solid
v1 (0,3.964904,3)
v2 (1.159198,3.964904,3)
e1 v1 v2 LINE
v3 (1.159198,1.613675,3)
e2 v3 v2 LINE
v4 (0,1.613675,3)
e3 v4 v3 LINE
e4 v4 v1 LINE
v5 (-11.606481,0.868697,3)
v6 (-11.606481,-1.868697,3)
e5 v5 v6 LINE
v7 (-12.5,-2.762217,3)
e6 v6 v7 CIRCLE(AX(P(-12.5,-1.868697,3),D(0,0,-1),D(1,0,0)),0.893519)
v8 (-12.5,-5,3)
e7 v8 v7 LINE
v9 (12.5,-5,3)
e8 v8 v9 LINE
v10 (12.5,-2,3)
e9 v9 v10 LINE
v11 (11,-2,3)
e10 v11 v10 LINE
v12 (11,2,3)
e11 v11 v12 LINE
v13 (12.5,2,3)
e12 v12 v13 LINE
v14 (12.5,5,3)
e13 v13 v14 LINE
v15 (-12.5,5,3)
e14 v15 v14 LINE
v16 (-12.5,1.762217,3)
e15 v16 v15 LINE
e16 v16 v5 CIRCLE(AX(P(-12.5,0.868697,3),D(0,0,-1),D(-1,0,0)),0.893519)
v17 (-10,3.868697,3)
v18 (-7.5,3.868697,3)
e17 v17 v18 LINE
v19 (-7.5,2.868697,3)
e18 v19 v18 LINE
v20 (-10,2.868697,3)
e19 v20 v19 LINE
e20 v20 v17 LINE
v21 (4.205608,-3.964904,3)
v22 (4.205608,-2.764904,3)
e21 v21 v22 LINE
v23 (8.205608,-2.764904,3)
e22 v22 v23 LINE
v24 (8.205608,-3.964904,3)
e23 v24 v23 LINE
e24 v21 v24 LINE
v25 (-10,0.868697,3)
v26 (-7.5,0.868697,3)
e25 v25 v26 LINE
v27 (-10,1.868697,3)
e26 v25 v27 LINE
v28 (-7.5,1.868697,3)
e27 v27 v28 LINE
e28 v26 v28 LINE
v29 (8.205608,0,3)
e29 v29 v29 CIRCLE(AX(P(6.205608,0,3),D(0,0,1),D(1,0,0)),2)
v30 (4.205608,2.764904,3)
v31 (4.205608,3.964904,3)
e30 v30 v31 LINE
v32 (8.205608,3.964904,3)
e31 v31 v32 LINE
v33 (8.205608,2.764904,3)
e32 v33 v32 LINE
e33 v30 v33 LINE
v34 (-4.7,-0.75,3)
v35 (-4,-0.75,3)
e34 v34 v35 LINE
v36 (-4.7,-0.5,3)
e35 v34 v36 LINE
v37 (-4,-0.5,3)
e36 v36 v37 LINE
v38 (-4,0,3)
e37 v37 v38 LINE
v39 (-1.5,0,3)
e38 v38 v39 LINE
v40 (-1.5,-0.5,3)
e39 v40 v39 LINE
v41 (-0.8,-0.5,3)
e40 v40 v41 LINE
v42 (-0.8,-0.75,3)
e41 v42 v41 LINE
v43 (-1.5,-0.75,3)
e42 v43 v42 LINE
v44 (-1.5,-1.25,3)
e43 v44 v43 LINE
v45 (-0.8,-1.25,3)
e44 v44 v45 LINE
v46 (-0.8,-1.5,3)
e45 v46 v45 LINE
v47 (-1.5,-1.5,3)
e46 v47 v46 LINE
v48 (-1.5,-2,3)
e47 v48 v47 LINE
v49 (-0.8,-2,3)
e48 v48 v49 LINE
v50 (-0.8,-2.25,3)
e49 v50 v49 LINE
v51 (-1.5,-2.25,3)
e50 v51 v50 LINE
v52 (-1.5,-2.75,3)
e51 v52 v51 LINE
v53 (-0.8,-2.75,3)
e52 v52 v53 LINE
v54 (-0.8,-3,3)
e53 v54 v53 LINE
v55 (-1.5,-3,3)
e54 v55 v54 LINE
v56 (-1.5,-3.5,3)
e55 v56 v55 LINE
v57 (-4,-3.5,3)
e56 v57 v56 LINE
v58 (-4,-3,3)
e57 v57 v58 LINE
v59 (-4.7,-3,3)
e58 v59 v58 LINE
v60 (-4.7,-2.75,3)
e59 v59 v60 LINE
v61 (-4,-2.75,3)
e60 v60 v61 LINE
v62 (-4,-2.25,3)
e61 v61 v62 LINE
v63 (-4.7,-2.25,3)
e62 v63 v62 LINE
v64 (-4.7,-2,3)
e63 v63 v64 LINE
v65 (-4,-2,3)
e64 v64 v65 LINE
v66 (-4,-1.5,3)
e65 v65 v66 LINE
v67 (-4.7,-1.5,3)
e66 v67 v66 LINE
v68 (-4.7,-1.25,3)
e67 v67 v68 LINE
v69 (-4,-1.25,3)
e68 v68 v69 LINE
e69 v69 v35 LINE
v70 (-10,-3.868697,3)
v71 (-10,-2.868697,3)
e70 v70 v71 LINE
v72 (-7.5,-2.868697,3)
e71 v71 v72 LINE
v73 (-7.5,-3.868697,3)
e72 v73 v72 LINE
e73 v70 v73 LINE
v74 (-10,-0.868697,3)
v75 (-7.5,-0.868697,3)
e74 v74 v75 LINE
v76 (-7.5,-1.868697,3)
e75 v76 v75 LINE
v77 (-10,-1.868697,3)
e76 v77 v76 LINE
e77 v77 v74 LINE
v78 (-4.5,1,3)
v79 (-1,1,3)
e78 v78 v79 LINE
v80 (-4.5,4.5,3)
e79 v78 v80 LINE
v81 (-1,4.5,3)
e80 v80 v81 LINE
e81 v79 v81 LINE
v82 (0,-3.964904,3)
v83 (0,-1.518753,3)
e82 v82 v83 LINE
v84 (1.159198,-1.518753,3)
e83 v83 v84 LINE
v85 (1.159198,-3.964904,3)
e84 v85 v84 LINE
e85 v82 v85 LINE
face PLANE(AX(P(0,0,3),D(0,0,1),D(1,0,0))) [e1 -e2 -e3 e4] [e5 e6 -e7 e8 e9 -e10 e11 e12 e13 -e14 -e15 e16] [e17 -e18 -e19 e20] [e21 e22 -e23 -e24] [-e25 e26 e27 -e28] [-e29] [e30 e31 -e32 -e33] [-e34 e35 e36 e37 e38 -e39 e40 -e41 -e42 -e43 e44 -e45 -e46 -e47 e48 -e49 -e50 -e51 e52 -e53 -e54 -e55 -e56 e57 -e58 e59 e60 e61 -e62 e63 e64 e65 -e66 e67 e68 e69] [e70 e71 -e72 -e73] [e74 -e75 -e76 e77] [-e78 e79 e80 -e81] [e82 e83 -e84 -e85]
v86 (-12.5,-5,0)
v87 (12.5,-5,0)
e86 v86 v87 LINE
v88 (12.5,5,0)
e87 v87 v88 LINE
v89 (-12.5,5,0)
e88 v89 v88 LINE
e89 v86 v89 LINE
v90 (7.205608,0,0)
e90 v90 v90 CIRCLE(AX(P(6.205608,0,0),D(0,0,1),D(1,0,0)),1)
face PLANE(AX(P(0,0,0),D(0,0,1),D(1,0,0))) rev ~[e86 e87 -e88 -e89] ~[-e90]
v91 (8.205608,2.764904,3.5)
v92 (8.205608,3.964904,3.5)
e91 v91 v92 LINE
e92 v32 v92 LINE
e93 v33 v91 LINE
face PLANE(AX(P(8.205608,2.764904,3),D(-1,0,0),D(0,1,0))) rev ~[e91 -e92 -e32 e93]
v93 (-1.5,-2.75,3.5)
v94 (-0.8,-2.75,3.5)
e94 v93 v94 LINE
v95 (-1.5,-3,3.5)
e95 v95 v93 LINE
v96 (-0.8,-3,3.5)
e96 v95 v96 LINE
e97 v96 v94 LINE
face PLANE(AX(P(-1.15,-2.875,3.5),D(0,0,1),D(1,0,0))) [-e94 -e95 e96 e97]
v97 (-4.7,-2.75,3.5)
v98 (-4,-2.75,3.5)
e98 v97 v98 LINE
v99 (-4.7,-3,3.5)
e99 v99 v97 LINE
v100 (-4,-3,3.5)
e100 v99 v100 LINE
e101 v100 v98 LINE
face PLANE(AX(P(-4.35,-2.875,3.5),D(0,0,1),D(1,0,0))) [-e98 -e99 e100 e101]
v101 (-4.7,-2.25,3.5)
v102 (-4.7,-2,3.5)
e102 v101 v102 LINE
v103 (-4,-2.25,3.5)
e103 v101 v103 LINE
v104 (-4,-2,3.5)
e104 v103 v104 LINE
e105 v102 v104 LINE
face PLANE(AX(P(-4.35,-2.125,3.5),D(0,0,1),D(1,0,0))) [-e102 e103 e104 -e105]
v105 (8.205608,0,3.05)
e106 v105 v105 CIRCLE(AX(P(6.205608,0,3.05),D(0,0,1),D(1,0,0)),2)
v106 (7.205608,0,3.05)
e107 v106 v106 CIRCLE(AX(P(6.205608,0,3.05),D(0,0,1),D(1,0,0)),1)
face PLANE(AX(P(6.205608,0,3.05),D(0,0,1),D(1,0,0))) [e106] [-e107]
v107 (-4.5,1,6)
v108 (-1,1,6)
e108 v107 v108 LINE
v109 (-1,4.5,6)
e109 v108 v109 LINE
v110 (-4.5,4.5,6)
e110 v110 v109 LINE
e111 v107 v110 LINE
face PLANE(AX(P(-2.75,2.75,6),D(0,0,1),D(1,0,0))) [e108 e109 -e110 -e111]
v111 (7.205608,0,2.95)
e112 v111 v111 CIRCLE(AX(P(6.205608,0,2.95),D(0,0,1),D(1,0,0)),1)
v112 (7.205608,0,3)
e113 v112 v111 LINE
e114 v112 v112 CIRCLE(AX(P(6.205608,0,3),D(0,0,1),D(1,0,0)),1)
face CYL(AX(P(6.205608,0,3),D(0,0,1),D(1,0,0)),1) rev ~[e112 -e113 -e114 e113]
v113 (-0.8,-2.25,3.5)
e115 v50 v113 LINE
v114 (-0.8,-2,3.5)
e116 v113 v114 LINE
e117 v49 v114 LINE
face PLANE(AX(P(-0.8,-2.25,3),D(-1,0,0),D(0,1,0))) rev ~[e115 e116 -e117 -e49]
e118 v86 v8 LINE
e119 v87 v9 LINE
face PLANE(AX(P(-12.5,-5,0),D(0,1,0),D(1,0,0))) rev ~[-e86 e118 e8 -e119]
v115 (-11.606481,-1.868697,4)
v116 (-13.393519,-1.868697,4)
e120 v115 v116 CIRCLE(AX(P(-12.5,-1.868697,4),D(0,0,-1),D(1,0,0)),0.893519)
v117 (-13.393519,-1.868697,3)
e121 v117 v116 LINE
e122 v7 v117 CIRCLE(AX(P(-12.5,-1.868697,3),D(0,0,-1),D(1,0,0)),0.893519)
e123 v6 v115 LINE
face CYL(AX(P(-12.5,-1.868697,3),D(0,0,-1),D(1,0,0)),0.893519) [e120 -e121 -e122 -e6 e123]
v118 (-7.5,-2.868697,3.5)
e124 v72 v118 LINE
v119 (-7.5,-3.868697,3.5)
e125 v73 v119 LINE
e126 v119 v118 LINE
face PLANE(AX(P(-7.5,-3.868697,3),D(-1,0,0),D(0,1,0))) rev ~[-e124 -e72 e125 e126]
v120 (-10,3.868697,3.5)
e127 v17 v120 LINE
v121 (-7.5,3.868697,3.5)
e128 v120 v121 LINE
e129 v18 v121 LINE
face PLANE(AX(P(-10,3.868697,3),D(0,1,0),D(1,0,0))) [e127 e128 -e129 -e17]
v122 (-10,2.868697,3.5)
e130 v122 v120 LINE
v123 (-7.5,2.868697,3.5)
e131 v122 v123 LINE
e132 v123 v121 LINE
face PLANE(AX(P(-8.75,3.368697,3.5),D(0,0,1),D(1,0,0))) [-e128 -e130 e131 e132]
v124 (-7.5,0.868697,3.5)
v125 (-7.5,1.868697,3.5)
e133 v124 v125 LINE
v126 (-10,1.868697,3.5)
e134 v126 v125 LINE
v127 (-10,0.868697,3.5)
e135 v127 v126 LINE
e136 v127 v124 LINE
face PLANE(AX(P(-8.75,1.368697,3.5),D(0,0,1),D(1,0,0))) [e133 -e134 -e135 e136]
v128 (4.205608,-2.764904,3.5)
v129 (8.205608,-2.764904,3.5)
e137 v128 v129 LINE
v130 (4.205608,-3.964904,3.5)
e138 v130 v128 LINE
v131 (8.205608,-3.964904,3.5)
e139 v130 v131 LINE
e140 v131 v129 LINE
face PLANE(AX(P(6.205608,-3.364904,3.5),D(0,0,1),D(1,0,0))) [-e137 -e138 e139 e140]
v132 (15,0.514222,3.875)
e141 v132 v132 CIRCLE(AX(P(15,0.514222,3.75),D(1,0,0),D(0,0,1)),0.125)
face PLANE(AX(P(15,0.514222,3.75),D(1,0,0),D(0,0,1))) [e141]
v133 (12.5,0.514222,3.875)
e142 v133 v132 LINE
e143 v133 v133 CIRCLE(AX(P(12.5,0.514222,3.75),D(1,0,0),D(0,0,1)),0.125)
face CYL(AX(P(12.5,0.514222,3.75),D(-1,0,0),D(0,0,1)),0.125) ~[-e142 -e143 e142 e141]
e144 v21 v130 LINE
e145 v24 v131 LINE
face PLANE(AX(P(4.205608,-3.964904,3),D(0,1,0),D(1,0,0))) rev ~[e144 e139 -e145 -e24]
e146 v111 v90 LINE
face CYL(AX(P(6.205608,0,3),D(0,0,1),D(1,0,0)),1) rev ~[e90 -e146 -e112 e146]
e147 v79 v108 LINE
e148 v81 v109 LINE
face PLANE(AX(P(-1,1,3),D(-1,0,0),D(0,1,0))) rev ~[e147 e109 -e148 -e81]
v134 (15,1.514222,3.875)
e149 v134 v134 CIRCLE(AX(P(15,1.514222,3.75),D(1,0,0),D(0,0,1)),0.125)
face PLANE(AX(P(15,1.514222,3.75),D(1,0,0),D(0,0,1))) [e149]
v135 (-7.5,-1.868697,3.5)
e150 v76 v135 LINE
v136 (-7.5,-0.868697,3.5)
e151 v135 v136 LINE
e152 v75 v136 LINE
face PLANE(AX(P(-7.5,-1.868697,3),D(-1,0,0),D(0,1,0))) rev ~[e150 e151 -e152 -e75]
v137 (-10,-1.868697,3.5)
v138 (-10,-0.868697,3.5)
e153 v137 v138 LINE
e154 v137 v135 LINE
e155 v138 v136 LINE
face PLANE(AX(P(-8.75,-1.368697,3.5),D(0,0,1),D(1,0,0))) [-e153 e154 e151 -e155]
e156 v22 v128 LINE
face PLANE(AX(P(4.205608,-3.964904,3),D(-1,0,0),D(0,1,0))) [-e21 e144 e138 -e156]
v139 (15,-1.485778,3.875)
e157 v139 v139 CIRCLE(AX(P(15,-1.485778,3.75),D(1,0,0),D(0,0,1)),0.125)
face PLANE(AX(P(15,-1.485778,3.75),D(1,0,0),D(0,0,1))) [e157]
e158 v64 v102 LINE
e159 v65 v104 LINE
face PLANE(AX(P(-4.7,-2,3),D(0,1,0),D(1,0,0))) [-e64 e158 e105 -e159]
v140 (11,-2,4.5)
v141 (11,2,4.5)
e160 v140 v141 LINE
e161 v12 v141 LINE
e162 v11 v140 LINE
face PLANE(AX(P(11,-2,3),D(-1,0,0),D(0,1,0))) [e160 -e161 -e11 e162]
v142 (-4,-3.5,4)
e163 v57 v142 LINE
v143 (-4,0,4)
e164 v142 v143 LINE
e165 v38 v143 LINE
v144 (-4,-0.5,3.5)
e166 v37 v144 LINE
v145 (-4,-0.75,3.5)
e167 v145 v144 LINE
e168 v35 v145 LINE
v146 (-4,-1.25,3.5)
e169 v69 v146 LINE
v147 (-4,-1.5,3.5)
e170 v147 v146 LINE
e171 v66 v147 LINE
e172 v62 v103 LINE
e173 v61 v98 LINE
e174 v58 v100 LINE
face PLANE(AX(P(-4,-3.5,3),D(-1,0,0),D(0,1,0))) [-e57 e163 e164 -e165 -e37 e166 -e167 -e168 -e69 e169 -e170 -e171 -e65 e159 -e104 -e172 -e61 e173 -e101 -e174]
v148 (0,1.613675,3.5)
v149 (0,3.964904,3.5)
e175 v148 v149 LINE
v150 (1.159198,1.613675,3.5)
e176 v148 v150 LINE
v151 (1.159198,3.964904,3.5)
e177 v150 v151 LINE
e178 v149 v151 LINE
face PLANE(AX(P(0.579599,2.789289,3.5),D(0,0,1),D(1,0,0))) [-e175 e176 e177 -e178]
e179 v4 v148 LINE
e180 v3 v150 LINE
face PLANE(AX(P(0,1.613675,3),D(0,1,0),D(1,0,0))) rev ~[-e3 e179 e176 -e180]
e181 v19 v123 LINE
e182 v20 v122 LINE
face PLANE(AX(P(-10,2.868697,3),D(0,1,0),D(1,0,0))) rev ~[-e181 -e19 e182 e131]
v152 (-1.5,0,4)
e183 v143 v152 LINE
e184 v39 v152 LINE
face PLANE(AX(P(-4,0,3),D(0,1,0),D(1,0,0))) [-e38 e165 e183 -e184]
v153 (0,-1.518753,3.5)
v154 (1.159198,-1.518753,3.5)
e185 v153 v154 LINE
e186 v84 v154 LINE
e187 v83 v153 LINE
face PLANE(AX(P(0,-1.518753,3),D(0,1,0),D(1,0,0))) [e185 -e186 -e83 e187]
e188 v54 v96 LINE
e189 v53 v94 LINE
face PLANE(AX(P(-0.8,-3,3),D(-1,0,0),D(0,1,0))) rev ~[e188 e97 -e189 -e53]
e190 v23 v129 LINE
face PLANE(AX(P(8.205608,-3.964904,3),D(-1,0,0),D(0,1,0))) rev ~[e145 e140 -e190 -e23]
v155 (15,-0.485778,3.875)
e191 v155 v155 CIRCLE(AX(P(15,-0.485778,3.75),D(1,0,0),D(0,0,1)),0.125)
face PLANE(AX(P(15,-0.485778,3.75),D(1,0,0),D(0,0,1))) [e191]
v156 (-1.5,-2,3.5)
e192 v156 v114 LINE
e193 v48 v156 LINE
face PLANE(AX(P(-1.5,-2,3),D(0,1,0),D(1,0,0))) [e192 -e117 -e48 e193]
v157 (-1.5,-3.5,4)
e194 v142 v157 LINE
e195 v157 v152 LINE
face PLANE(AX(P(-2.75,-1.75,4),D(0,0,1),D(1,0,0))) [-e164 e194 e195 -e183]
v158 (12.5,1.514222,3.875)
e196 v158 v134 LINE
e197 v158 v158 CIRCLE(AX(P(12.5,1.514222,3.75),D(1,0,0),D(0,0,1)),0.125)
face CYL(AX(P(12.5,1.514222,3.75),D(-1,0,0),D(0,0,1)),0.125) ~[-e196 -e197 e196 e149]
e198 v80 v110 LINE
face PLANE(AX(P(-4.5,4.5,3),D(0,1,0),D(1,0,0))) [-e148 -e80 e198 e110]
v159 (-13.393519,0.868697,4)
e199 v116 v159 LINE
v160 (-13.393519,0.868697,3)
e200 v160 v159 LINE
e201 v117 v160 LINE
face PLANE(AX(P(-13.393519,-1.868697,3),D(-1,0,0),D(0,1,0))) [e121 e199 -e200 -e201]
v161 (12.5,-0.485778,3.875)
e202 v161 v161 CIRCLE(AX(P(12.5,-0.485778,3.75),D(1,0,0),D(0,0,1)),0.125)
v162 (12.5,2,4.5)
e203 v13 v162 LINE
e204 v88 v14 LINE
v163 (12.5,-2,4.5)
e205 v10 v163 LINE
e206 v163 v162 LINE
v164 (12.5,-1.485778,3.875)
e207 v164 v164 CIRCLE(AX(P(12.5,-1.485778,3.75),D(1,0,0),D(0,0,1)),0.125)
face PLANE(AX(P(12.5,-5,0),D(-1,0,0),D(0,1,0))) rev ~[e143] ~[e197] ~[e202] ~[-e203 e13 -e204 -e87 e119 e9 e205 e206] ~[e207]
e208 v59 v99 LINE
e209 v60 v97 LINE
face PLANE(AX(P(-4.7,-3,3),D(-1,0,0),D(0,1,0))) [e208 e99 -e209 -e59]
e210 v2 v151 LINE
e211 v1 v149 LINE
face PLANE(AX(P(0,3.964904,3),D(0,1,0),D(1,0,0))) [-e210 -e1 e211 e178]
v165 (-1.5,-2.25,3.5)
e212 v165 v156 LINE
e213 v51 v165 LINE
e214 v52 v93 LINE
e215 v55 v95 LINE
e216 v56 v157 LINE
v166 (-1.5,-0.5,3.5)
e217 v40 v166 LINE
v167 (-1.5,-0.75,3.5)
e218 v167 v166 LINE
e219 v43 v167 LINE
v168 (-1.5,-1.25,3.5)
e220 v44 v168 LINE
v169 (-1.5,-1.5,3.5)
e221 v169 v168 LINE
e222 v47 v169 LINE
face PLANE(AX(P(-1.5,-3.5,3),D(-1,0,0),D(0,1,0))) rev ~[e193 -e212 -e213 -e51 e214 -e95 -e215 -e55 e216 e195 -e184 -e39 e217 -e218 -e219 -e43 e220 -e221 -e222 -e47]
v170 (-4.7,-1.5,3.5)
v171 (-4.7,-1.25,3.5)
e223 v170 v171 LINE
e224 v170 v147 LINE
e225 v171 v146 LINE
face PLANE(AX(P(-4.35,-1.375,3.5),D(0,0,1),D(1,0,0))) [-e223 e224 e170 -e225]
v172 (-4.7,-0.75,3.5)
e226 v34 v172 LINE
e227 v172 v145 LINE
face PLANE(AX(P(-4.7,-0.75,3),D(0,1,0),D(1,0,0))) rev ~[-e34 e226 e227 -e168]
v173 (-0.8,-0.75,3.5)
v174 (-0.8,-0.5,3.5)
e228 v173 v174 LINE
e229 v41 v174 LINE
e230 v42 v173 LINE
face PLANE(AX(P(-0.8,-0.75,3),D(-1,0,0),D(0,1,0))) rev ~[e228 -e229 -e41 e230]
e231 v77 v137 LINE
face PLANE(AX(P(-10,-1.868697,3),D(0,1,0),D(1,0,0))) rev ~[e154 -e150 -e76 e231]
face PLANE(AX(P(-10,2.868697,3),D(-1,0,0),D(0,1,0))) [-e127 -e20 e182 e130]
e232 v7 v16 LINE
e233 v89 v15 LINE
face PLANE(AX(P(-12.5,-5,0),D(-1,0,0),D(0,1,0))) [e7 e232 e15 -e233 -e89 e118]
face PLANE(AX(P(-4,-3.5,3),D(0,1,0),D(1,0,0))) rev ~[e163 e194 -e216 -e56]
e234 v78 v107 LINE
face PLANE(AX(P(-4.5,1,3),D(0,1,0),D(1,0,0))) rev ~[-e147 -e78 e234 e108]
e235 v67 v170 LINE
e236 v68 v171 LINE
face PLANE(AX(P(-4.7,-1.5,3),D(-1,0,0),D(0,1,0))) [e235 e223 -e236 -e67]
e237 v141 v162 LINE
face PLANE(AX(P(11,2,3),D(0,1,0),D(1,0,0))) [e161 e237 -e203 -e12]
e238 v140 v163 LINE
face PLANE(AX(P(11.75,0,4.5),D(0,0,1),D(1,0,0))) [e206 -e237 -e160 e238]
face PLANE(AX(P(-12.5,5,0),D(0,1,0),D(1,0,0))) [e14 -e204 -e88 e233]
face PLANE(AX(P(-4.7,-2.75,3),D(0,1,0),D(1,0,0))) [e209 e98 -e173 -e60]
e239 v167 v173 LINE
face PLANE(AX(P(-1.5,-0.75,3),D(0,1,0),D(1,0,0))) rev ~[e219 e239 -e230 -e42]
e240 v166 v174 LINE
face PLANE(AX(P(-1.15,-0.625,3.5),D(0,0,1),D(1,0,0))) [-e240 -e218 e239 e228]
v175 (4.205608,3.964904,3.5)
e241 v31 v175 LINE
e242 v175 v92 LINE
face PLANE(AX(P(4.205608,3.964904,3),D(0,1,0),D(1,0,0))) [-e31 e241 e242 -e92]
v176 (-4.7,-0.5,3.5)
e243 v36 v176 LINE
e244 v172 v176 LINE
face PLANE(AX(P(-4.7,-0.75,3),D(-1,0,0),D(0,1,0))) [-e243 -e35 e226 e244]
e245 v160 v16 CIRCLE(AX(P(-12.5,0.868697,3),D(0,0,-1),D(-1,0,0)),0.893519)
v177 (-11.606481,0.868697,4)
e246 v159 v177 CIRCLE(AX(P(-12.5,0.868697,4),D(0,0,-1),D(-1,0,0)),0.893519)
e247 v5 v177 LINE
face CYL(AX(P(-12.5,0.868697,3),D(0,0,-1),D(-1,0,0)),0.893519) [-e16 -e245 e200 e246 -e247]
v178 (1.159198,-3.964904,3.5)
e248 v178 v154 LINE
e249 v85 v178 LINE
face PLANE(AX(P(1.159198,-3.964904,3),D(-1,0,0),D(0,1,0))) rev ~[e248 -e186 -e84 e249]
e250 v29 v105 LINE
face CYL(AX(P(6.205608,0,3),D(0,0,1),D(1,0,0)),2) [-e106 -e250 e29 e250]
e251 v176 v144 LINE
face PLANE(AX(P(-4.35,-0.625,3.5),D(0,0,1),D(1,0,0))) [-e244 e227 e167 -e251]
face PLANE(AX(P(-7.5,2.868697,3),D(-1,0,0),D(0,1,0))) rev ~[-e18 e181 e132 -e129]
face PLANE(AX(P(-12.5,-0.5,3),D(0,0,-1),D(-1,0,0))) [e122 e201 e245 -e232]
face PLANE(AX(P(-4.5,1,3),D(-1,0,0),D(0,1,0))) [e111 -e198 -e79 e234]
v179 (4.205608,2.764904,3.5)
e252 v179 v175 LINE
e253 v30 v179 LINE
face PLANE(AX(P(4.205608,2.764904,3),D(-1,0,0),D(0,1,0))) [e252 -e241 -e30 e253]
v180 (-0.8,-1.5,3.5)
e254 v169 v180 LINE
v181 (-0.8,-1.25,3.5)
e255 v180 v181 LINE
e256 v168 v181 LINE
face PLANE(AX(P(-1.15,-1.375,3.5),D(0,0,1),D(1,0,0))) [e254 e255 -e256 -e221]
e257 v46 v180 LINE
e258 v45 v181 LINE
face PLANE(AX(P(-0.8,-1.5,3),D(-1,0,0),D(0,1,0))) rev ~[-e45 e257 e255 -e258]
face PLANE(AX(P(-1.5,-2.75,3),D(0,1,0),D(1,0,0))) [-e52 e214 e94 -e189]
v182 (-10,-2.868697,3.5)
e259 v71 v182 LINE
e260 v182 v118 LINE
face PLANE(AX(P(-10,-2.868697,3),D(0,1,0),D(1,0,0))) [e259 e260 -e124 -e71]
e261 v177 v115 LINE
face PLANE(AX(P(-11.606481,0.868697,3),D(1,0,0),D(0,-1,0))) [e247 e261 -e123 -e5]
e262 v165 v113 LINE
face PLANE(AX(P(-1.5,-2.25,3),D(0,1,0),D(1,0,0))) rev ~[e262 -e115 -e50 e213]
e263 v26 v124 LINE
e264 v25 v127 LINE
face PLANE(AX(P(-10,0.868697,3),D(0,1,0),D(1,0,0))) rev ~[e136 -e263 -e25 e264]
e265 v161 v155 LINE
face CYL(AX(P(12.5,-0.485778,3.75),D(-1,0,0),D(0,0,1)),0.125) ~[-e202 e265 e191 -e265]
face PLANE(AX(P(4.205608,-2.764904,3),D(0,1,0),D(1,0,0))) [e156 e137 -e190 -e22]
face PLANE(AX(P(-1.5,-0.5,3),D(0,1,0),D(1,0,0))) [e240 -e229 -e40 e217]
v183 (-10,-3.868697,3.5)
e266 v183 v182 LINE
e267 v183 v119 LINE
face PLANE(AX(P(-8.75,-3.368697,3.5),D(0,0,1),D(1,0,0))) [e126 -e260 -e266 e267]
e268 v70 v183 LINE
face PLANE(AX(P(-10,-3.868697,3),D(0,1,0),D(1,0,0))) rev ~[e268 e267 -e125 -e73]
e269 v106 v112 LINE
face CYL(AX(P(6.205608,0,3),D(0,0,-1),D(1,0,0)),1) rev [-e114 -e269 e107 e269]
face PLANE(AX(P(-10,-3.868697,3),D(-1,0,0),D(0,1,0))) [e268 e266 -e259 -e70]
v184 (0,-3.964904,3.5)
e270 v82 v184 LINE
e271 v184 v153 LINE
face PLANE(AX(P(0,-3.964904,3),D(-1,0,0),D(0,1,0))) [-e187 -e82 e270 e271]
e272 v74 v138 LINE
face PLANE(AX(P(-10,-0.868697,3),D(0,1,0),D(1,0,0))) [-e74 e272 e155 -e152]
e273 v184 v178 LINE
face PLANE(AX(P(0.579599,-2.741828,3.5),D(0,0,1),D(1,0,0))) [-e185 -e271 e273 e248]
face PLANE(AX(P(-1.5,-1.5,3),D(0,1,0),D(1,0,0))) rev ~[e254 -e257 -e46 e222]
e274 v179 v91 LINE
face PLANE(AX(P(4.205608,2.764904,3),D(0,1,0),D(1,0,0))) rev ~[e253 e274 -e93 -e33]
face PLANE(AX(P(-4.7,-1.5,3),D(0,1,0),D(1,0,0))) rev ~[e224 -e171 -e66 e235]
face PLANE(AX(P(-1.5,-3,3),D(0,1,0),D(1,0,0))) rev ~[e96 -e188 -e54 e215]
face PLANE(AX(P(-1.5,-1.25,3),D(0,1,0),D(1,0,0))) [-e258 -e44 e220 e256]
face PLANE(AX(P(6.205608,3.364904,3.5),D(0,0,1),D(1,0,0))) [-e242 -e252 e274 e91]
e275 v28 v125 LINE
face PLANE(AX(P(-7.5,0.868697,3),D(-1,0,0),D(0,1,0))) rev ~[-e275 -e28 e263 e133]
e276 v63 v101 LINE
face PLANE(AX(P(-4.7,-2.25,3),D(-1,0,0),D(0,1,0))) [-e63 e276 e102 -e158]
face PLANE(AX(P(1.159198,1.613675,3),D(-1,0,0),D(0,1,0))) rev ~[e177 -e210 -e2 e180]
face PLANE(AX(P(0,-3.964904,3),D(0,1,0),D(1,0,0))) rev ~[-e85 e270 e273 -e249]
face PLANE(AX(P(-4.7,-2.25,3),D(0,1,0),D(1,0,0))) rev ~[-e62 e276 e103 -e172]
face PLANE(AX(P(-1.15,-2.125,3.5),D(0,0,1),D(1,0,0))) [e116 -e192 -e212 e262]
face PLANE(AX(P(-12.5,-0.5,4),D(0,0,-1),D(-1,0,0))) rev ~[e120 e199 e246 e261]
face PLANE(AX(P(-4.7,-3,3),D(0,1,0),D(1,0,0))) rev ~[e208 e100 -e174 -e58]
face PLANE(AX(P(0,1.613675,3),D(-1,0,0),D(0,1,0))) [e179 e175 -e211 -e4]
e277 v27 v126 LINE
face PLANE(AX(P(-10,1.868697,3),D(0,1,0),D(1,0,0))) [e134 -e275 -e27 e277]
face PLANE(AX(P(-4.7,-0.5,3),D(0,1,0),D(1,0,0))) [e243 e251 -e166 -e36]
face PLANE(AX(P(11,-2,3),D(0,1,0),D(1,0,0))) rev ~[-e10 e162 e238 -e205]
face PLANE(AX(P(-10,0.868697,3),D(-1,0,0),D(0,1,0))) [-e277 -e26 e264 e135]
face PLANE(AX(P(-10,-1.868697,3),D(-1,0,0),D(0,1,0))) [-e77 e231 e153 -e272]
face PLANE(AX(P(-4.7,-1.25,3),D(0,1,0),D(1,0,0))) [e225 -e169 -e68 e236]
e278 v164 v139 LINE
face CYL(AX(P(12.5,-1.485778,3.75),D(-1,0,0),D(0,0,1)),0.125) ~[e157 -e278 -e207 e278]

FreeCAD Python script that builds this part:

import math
import FreeCAD as App
import Part
import Sketcher
Q = App.Units.Quantity

doc = App.newDocument("Part")
body = doc.addObject("PartDesign::Body", "Body")

# Sketch on XY plane
sketch1 = doc.addObject("Sketcher::SketchObject", "Sketch")
body.addObject(sketch1)
sketch1.AttachmentSupport = (doc.XY_Plane, [""])
sketch1.MapMode = "FlatFace"
sketch1.addGeometry([
    Part.LineSegment(App.Vector(-12.5, 5, 0), App.Vector(-12.5, -5, 0)),
    Part.LineSegment(App.Vector(-12.5, -5, 0), App.Vector(12.5, -5, 0)),
    Part.LineSegment(App.Vector(12.5, -5, 0), App.Vector(12.5, 5, 0)),
    Part.LineSegment(App.Vector(12.5, 5, 0), App.Vector(-12.5, 5, 0)),
], False)
sketch1.addConstraint([
    Sketcher.Constraint("Coincident", 0, 2, 1, 1),
    Sketcher.Constraint("Coincident", 1, 2, 2, 1),
    Sketcher.Constraint("Coincident", 2, 2, 3, 1),
    Sketcher.Constraint("Coincident", 3, 2, 0, 1),
    Sketcher.Constraint("Vertical", 0),
    Sketcher.Constraint("Horizontal", 1),
    Sketcher.Constraint("Vertical", 2),
    Sketcher.Constraint("Horizontal", 3),
    Sketcher.Constraint("Symmetric", 0, 2, 2, 2, -1, 1),
    Sketcher.Constraint("DistanceX", 1, 1, 1, 2, Q("25 mm")),
    Sketcher.Constraint("DistanceY", 0, 2, 0, 1, Q("10 mm")),
])
pad1 = doc.addObject("PartDesign::Pad", "Pad")
body.addObject(pad1)
pad1.Profile = sketch1
pad1.Length = 3

# Sketch on XY plane
sketch2 = doc.addObject("Sketcher::SketchObject", "Sketch001")
body.addObject(sketch2)
sketch2.AttachmentSupport = (doc.XY_Plane, [""])
sketch2.MapMode = "FlatFace"
sketch2.AttachmentOffset = App.Placement(App.Vector(0, 0, 3), App.Rotation())
sketch2.addGeometry(Part.Circle(App.Vector(6.205608, 0, 0), App.Vector(0, 0, 1), 1), False)
sketch2.addConstraint([
    Sketcher.Constraint("PointOnObject", 0, 3, -1),
    Sketcher.Constraint("Diameter", 0, Q("2 mm")),
    Sketcher.Constraint("DistanceX", -1, 1, 0, 3, Q("6.205608 mm")),
])
pocket1 = doc.addObject("PartDesign::Pocket", "Pocket")
body.addObject(pocket1)
pocket1.Profile = sketch2
pocket1.Type = "UpToFirst"

# Sketch on XY plane
sketch3 = doc.addObject("Sketcher::SketchObject", "Sketch002")
body.addObject(sketch3)
sketch3.AttachmentSupport = (doc.XY_Plane, [""])
sketch3.MapMode = "FlatFace"
sketch3.AttachmentOffset = App.Placement(App.Vector(0, 0, 3), App.Rotation())
sketch3.addGeometry([
    Part.Circle(App.Vector(6.205608, 0, 0), App.Vector(0, 0, 1), 2),
    Part.Circle(App.Vector(6.205608, 0, 0), App.Vector(0, 0, 1), 1),
], False)
sketch3.addConstraint([
    Sketcher.Constraint("Coincident", 1, 3, 0, 3),
    Sketcher.Constraint("PointOnObject", 0, 3, -1),
    Sketcher.Constraint("Diameter", 0, Q("4 mm")),
    Sketcher.Constraint("Diameter", 1, Q("2 mm")),
    Sketcher.Constraint("DistanceX", -1, 1, 0, 3, Q("6.205608 mm")),
])
pad2 = doc.addObject("PartDesign::Pad", "Pad001")
body.addObject(pad2)
pad2.Profile = sketch3
pad2.Length = 0.1
pad2.Midplane = True

# Sketch on XY plane
sketch4 = doc.addObject("Sketcher::SketchObject", "Sketch003")
body.addObject(sketch4)
sketch4.AttachmentSupport = (doc.XY_Plane, [""])
sketch4.MapMode = "FlatFace"
sketch4.AttachmentOffset = App.Placement(App.Vector(0, 0, 3), App.Rotation())
sketch4.addGeometry([
    Part.LineSegment(App.Vector(-4.5, 4.5, 0), App.Vector(-4.5, 1, 0)),
    Part.LineSegment(App.Vector(-4.5, 1, 0), App.Vector(-1, 1, 0)),
    Part.LineSegment(App.Vector(-1, 1, 0), App.Vector(-1, 4.5, 0)),
    Part.LineSegment(App.Vector(-1, 4.5, 0), App.Vector(-4.5, 4.5, 0)),
], False)
sketch4.addConstraint([
    Sketcher.Constraint("Coincident", 0, 2, 1, 1),
    Sketcher.Constraint("Coincident", 1, 2, 2, 1),
    Sketcher.Constraint("Coincident", 2, 2, 3, 1),
    Sketcher.Constraint("Coincident", 3, 2, 0, 1),
    Sketcher.Constraint("Vertical", 0),
    Sketcher.Constraint("Horizontal", 1),
    Sketcher.Constraint("Vertical", 2),
    Sketcher.Constraint("Horizontal", 3),
    Sketcher.Constraint("Equal", 3, 0),
    Sketcher.Constraint("DistanceX", 1, 1, 1, 2, Q("3.5 mm")),
    Sketcher.Constraint("DistanceY", -1, 1, 0, 2, Q("1 mm")),
    Sketcher.Constraint("DistanceX", 1, 2, -1, 1, Q("1 mm")),
])
pad3 = doc.addObject("PartDesign::Pad", "Pad002")
body.addObject(pad3)
pad3.Profile = sketch4
pad3.Length = 3

# Sketch on XY plane
sketch5 = doc.addObject("Sketcher::SketchObject", "Sketch004")
body.addObject(sketch5)
sketch5.AttachmentSupport = (doc.XY_Plane, [""])
sketch5.MapMode = "FlatFace"
sketch5.AttachmentOffset = App.Placement(App.Vector(0, 0, 3), App.Rotation())
sketch5.addGeometry([
    Part.LineSegment(App.Vector(-4, 0, 0), App.Vector(-4, -3.5, 0)),
    Part.LineSegment(App.Vector(-4, -3.5, 0), App.Vector(-1.5, -3.5, 0)),
    Part.LineSegment(App.Vector(-1.5, -3.5, 0), App.Vector(-1.5, 0, 0)),
    Part.LineSegment(App.Vector(-1.5, 0, 0), App.Vector(-4, 0, 0)),
], False)
sketch5.addConstraint([
    Sketcher.Constraint("Coincident", 0, 2, 1, 1),
    Sketcher.Constraint("Coincident", 1, 2, 2, 1),
    Sketcher.Constraint("Coincident", 2, 2, 3, 1),
    Sketcher.Constraint("Coincident", 3, 2, 0, 1),
    Sketcher.Constraint("Vertical", 0),
    Sketcher.Constraint("Horizontal", 1),
    Sketcher.Constraint("Vertical", 2),
    Sketcher.Constraint("Horizontal", 3),
    Sketcher.Constraint("PointOnObject", 2, 2, -1),
    Sketcher.Constraint("DistanceX", 1, 1, 1, 2, Q("2.5 mm")),
    Sketcher.Constraint("DistanceY", 0, 2, 0, 1, Q("3.5 mm")),
    Sketcher.Constraint("DistanceX", 0, 2, -1, 1, Q("4 mm")),
])
pad4 = doc.addObject("PartDesign::Pad", "Pad003")
body.addObject(pad4)
pad4.Profile = sketch5
pad4.Length = 1

# Sketch on XY plane
sketch6 = doc.addObject("Sketcher::SketchObject", "Sketch005")
body.addObject(sketch6)
sketch6.AttachmentSupport = (doc.XY_Plane, [""])
sketch6.MapMode = "FlatFace"
sketch6.AttachmentOffset = App.Placement(App.Vector(0, 0, 3), App.Rotation())
sketch6.addGeometry([
    Part.LineSegment(App.Vector(-4.7, -0.5, 0), App.Vector(-4.7, -0.75, 0)),  # 0
    Part.LineSegment(App.Vector(-4.7, -0.75, 0), App.Vector(-4, -0.75, 0)),  # 1
    Part.LineSegment(App.Vector(-4, -0.75, 0), App.Vector(-4, -0.5, 0)),  # 2
    Part.LineSegment(App.Vector(-4, -0.5, 0), App.Vector(-4.7, -0.5, 0)),  # 3
    Part.LineSegment(App.Vector(-4.7, -1.25, 0), App.Vector(-4.7, -1.5, 0)),  # 4
    Part.LineSegment(App.Vector(-4.7, -1.5, 0), App.Vector(-4, -1.5, 0)),  # 5
    Part.LineSegment(App.Vector(-4, -1.5, 0), App.Vector(-4, -1.25, 0)),  # 6
    Part.LineSegment(App.Vector(-4, -1.25, 0), App.Vector(-4.7, -1.25, 0)),  # 7
    Part.LineSegment(App.Vector(-4.7, -2, 0), App.Vector(-4.7, -2.25, 0)),  # 8
    Part.LineSegment(App.Vector(-4.7, -2.25, 0), App.Vector(-4, -2.25, 0)),  # 9
    Part.LineSegment(App.Vector(-4, -2.25, 0), App.Vector(-4, -2, 0)),  # 10
    Part.LineSegment(App.Vector(-4, -2, 0), App.Vector(-4.7, -2, 0)),  # 11
    Part.LineSegment(App.Vector(-4.7, -2.75, 0), App.Vector(-4.7, -3, 0)),  # 12
    Part.LineSegment(App.Vector(-4.7, -3, 0), App.Vector(-4, -3, 0)),  # 13
    Part.LineSegment(App.Vector(-4, -3, 0), App.Vector(-4, -2.75, 0)),  # 14
    Part.LineSegment(App.Vector(-4, -2.75, 0), App.Vector(-4.7, -2.75, 0)),  # 15
    Part.LineSegment(App.Vector(-1.5, -2.75, 0), App.Vector(-1.5, -3, 0)),  # 16
    Part.LineSegment(App.Vector(-1.5, -3, 0), App.Vector(-0.8, -3, 0)),  # 17
    Part.LineSegment(App.Vector(-0.8, -3, 0), App.Vector(-0.8, -2.75, 0)),  # 18
    Part.LineSegment(App.Vector(-0.8, -2.75, 0), App.Vector(-1.5, -2.75, 0)),  # 19
    Part.LineSegment(App.Vector(-1.5, -2, 0), App.Vector(-1.5, -2.25, 0)),  # 20
    Part.LineSegment(App.Vector(-1.5, -2.25, 0), App.Vector(-0.8, -2.25, 0)),  # 21
    Part.LineSegment(App.Vector(-0.8, -2.25, 0), App.Vector(-0.8, -2, 0)),  # 22
    Part.LineSegment(App.Vector(-0.8, -2, 0), App.Vector(-1.5, -2, 0)),  # 23
    Part.LineSegment(App.Vector(-1.5, -1.25, 0), App.Vector(-1.5, -1.5, 0)),  # 24
    Part.LineSegment(App.Vector(-1.5, -1.5, 0), App.Vector(-0.8, -1.5, 0)),  # 25
    Part.LineSegment(App.Vector(-0.8, -1.5, 0), App.Vector(-0.8, -1.25, 0)),  # 26
    Part.LineSegment(App.Vector(-0.8, -1.25, 0), App.Vector(-1.5, -1.25, 0)),  # 27
    Part.LineSegment(App.Vector(-1.5, -0.5, 0), App.Vector(-1.5, -0.75, 0)),  # 28
    Part.LineSegment(App.Vector(-1.5, -0.75, 0), App.Vector(-0.8, -0.75, 0)),  # 29
    Part.LineSegment(App.Vector(-0.8, -0.75, 0), App.Vector(-0.8, -0.5, 0)),  # 30
    Part.LineSegment(App.Vector(-0.8, -0.5, 0), App.Vector(-1.5, -0.5, 0)),  # 31
], False)
sketch6.addConstraint([
    Sketcher.Constraint("Coincident", 0, 2, 1, 1),
    Sketcher.Constraint("Coincident", 1, 2, 2, 1),
    Sketcher.Constraint("Coincident", 2, 2, 3, 1),
    Sketcher.Constraint("Coincident", 3, 2, 0, 1),
    Sketcher.Constraint("Coincident", 4, 2, 5, 1),
    Sketcher.Constraint("Coincident", 5, 2, 6, 1),
    Sketcher.Constraint("Coincident", 6, 2, 7, 1),
    Sketcher.Constraint("Coincident", 7, 2, 4, 1),
    Sketcher.Constraint("Coincident", 8, 2, 9, 1),
    Sketcher.Constraint("Coincident", 9, 2, 10, 1),
    Sketcher.Constraint("Coincident", 10, 2, 11, 1),
    Sketcher.Constraint("Coincident", 11, 2, 8, 1),
    Sketcher.Constraint("Coincident", 12, 2, 13, 1),
    Sketcher.Constraint("Coincident", 13, 2, 14, 1),
    Sketcher.Constraint("Coincident", 14, 2, 15, 1),
    Sketcher.Constraint("Coincident", 15, 2, 12, 1),
    Sketcher.Constraint("Coincident", 16, 2, 17, 1),
    Sketcher.Constraint("Coincident", 17, 2, 18, 1),
    Sketcher.Constraint("Coincident", 18, 2, 19, 1),
    Sketcher.Constraint("Coincident", 19, 2, 16, 1),
    Sketcher.Constraint("Coincident", 20, 2, 21, 1),
    Sketcher.Constraint("Coincident", 21, 2, 22, 1),
    Sketcher.Constraint("Coincident", 22, 2, 23, 1),
    Sketcher.Constraint("Coincident", 23, 2, 20, 1),
    Sketcher.Constraint("Coincident", 24, 2, 25, 1),
    Sketcher.Constraint("Coincident", 25, 2, 26, 1),
    Sketcher.Constraint("Coincident", 26, 2, 27, 1),
    Sketcher.Constraint("Coincident", 27, 2, 24, 1),
    Sketcher.Constraint("Coincident", 28, 2, 29, 1),
    Sketcher.Constraint("Coincident", 29, 2, 30, 1),
    Sketcher.Constraint("Coincident", 30, 2, 31, 1),
    Sketcher.Constraint("Coincident", 31, 2, 28, 1),
    Sketcher.Constraint("Vertical", 0),
    Sketcher.Constraint("Horizontal", 1),
    Sketcher.Constraint("Vertical", 2),
    Sketcher.Constraint("Horizontal", 3),
    Sketcher.Constraint("Vertical", 4),
    Sketcher.Constraint("Horizontal", 5),
    Sketcher.Constraint("Vertical", 6),
    Sketcher.Constraint("Horizontal", 7),
    Sketcher.Constraint("Vertical", 8),
    Sketcher.Constraint("Horizontal", 9),
    Sketcher.Constraint("Vertical", 10),
    Sketcher.Constraint("Horizontal", 11),
    Sketcher.Constraint("Vertical", 12),
    Sketcher.Constraint("Horizontal", 13),
    Sketcher.Constraint("Vertical", 14),
    Sketcher.Constraint("Horizontal", 15),
    Sketcher.Constraint("Vertical", 16),
    Sketcher.Constraint("Horizontal", 17),
    Sketcher.Constraint("Vertical", 18),
    Sketcher.Constraint("Horizontal", 19),
    Sketcher.Constraint("Vertical", 20),
    Sketcher.Constraint("Horizontal", 21),
    Sketcher.Constraint("Vertical", 22),
    Sketcher.Constraint("Horizontal", 23),
    Sketcher.Constraint("Vertical", 24),
    Sketcher.Constraint("Horizontal", 25),
    Sketcher.Constraint("Vertical", 26),
    Sketcher.Constraint("Horizontal", 27),
    Sketcher.Constraint("Vertical", 28),
    Sketcher.Constraint("Horizontal", 29),
    Sketcher.Constraint("Vertical", 30),
    Sketcher.Constraint("Horizontal", 31),
    Sketcher.Constraint("Horizontal", 13, 2, 16, 2),
    Sketcher.Constraint("Horizontal", 15, 2, 18, 2),
    Sketcher.Constraint("Horizontal", 9, 2, 20, 2),
    Sketcher.Constraint("Horizontal", 11, 2, 22, 2),
    Sketcher.Constraint("Horizontal", 5, 2, 24, 2),
    Sketcher.Constraint("Horizontal", 7, 2, 26, 2),
    Sketcher.Constraint("Horizontal", 1, 2, 28, 2),
    Sketcher.Constraint("Horizontal", 3, 2, 30, 2),
    Sketcher.Constraint("Vertical", 3, 2, 4, 2),
    Sketcher.Constraint("Vertical", 2, 2, 5, 2),
    Sketcher.Constraint("Vertical", 7, 2, 8, 2),
    Sketcher.Constraint("Vertical", 6, 2, 9, 2),
    Sketcher.Constraint("Vertical", 11, 2, 12, 2),
    Sketcher.Constraint("Vertical", 10, 2, 13, 2),
    Sketcher.Constraint("Vertical", 19, 2, 20, 2),
    Sketcher.Constraint("Vertical", 18, 2, 21, 2),
    Sketcher.Constraint("Vertical", 23, 2, 24, 2),
    Sketcher.Constraint("Vertical", 22, 2, 25, 2),
    Sketcher.Constraint("Vertical", 27, 2, 28, 2),
    Sketcher.Constraint("Vertical", 26, 2, 29, 2),
    Sketcher.Constraint("Equal", 15, 17),
    Sketcher.Constraint("Equal", 2, 4),
    Sketcher.Constraint("Equal", 6, 8),
    Sketcher.Constraint("Equal", 10, 12),
    Sketcher.Constraint("DistanceX", 1, 1, 1, 2, Q("0.7 mm")),
    Sketcher.Constraint("DistanceX", 1, 2, -1, 1, Q("4 mm")),
    Sketcher.Constraint("DistanceY", 10, 2, -1, 1, Q("2 mm")),
    Sketcher.Constraint("DistanceY", 12, 2, -1, 1, Q("3 mm")),
    Sketcher.Constraint("DistanceY", 4, 2, 3, 2, Q("1 mm")),
    Sketcher.Constraint("DistanceY", 8, 2, 7, 2, Q("1 mm")),
    Sketcher.Constraint("DistanceY", 0, 2, 0, 1, Q("0.25 mm")),
    Sketcher.Constraint("DistanceX", 16, 2, -1, 1, Q("1.5 mm")),
])
pad5 = doc.addObject("PartDesign::Pad", "Pad004")
body.addObject(pad5)
pad5.Profile = sketch6
pad5.Length = 0.5

# Sketch on XY plane
sketch7 = doc.addObject("Sketcher::SketchObject", "Sketch006")
body.addObject(sketch7)
sketch7.AttachmentSupport = (doc.XY_Plane, [""])
sketch7.MapMode = "FlatFace"
sketch7.AttachmentOffset = App.Placement(App.Vector(0, 0, 3), App.Rotation())
sketch7.addGeometry([
    Part.LineSegment(App.Vector(-10, 3.868697, 0), App.Vector(-10, 2.868697, 0)),  # 0
    Part.LineSegment(App.Vector(-10, 2.868697, 0), App.Vector(-7.5, 2.868697, 0)),  # 1
    Part.LineSegment(App.Vector(-7.5, 2.868697, 0), App.Vector(-7.5, 3.868697, 0)),  # 2
    Part.LineSegment(App.Vector(-7.5, 3.868697, 0), App.Vector(-10, 3.868697, 0)),  # 3
    Part.LineSegment(App.Vector(-10, 1.868697, 0), App.Vector(-10, 0.868697, 0)),  # 4
    Part.LineSegment(App.Vector(-10, 0.868697, 0), App.Vector(-7.5, 0.868697, 0)),  # 5
    Part.LineSegment(App.Vector(-7.5, 0.868697, 0), App.Vector(-7.5, 1.868697, 0)),  # 6
    Part.LineSegment(App.Vector(-7.5, 1.868697, 0), App.Vector(-10, 1.868697, 0)),  # 7
    Part.LineSegment(App.Vector(4.205608, -2.764904, 0), App.Vector(4.205608, -3.964904, 0)),  # 8
    Part.LineSegment(App.Vector(4.205608, -3.964904, 0), App.Vector(8.205608, -3.964904, 0)),  # 9
    Part.LineSegment(App.Vector(8.205608, -3.964904, 0), App.Vector(8.205608, -2.764904, 0)),  # 10
    Part.LineSegment(App.Vector(8.205608, -2.764904, 0), App.Vector(4.205608, -2.764904, 0)),  # 11
], False)
sketch7.addConstraint([
    Sketcher.Constraint("Coincident", 0, 2, 1, 1),
    Sketcher.Constraint("Coincident", 1, 2, 2, 1),
    Sketcher.Constraint("Coincident", 2, 2, 3, 1),
    Sketcher.Constraint("Coincident", 3, 2, 0, 1),
    Sketcher.Constraint("Coincident", 4, 2, 5, 1),
    Sketcher.Constraint("Coincident", 5, 2, 6, 1),
    Sketcher.Constraint("Coincident", 6, 2, 7, 1),
    Sketcher.Constraint("Coincident", 7, 2, 4, 1),
    Sketcher.Constraint("Coincident", 8, 2, 9, 1),
    Sketcher.Constraint("Coincident", 9, 2, 10, 1),
    Sketcher.Constraint("Coincident", 10, 2, 11, 1),
    Sketcher.Constraint("Coincident", 11, 2, 8, 1),
    Sketcher.Constraint("Vertical", 0),
    Sketcher.Constraint("Horizontal", 1),
    Sketcher.Constraint("Vertical", 2),
    Sketcher.Constraint("Horizontal", 3),
    Sketcher.Constraint("Vertical", 4),
    Sketcher.Constraint("Horizontal", 5),
    Sketcher.Constraint("Vertical", 6),
    Sketcher.Constraint("Horizontal", 7),
    Sketcher.Constraint("Vertical", 8),
    Sketcher.Constraint("Horizontal", 9),
    Sketcher.Constraint("Vertical", 10),
    Sketcher.Constraint("Horizontal", 11),
    Sketcher.Constraint("Vertical", 3, 2, 4, 2),
    Sketcher.Constraint("Vertical", 2, 2, 5, 2),
    Sketcher.Constraint("Equal", 2, 4),
    Sketcher.Constraint("DistanceX", 9, 1, 9, 2, Q("4 mm")),
    Sketcher.Constraint("DistanceY", 0, 2, 0, 1, Q("1 mm")),
    Sketcher.Constraint("DistanceX", 1, 1, 1, 2, Q("2.5 mm")),
    Sketcher.Constraint("DistanceY", 8, 2, 8, 1, Q("1.2 mm")),
    Sketcher.Constraint("DistanceX", 0, 2, -1, 1, Q("10 mm")),
    Sketcher.Constraint("DistanceY", 4, 2, 0, 2, Q("2 mm")),
    Sketcher.Constraint("DistanceY", 8, 2, 5, 2, Q("4.833601 mm")),
    Sketcher.Constraint("DistanceX", -1, 1, 8, 2, Q("4.205608 mm")),
    Sketcher.Constraint("DistanceY", -1, 1, 0, 2, Q("2.868697 mm")),
])
pad6 = doc.addObject("PartDesign::Pad", "Pad005")
body.addObject(pad6)
pad6.Profile = sketch7
pad6.Length = 0.5

# Sketch on XY plane
sketch8 = doc.addObject("Sketcher::SketchObject", "Sketch007")
body.addObject(sketch8)
sketch8.AttachmentSupport = (doc.XY_Plane, [""])
sketch8.MapMode = "FlatFace"
sketch8.AttachmentOffset = App.Placement(App.Vector(0, 0, 3), App.Rotation())
sketch8.addGeometry([
    Part.LineSegment(App.Vector(-10, -0.868697, 0), App.Vector(-10, -1.868697, 0)),  # 0
    Part.LineSegment(App.Vector(-10, -1.868697, 0), App.Vector(-7.5, -1.868697, 0)),  # 1
    Part.LineSegment(App.Vector(-7.5, -1.868697, 0), App.Vector(-7.5, -0.868697, 0)),  # 2
    Part.LineSegment(App.Vector(-7.5, -0.868697, 0), App.Vector(-10, -0.868697, 0)),  # 3
    Part.LineSegment(App.Vector(4.205608, 3.964904, 0), App.Vector(4.205608, 2.764904, 0)),  # 4
    Part.LineSegment(App.Vector(4.205608, 2.764904, 0), App.Vector(8.205608, 2.764904, 0)),  # 5
    Part.LineSegment(App.Vector(8.205608, 2.764904, 0), App.Vector(8.205608, 3.964904, 0)),  # 6
    Part.LineSegment(App.Vector(8.205608, 3.964904, 0), App.Vector(4.205608, 3.964904, 0)),  # 7
    Part.LineSegment(App.Vector(-10, -2.868697, 0), App.Vector(-10, -3.868697, 0)),  # 8
    Part.LineSegment(App.Vector(-10, -3.868697, 0), App.Vector(-7.5, -3.868697, 0)),  # 9
    Part.LineSegment(App.Vector(-7.5, -3.868697, 0), App.Vector(-7.5, -2.868697, 0)),  # 10
    Part.LineSegment(App.Vector(-7.5, -2.868697, 0), App.Vector(-10, -2.868697, 0)),  # 11
    Part.LineSegment(App.Vector(4.205608, -2.764904, 0), App.Vector(4.205608, -3.964904, 0)),  # 12
    Part.LineSegment(App.Vector(4.205608, -3.964904, 0), App.Vector(8.205608, -3.964904, 0)),  # 13
    Part.LineSegment(App.Vector(8.205608, -3.964904, 0), App.Vector(8.205608, -2.764904, 0)),  # 14
    Part.LineSegment(App.Vector(8.205608, -2.764904, 0), App.Vector(4.205608, -2.764904, 0)),  # 15
], False)
sketch8.addConstraint([
    Sketcher.Constraint("Coincident", 0, 2, 1, 1),
    Sketcher.Constraint("Coincident", 1, 2, 2, 1),
    Sketcher.Constraint("Coincident", 2, 2, 3, 1),
    Sketcher.Constraint("Coincident", 3, 2, 0, 1),
    Sketcher.Constraint("Coincident", 4, 2, 5, 1),
    Sketcher.Constraint("Coincident", 5, 2, 6, 1),
    Sketcher.Constraint("Coincident", 6, 2, 7, 1),
    Sketcher.Constraint("Coincident", 7, 2, 4, 1),
    Sketcher.Constraint("Coincident", 8, 2, 9, 1),
    Sketcher.Constraint("Coincident", 9, 2, 10, 1),
    Sketcher.Constraint("Coincident", 10, 2, 11, 1),
    Sketcher.Constraint("Coincident", 11, 2, 8, 1),
    Sketcher.Constraint("Coincident", 12, 2, 13, 1),
    Sketcher.Constraint("Coincident", 13, 2, 14, 1),
    Sketcher.Constraint("Coincident", 14, 2, 15, 1),
    Sketcher.Constraint("Coincident", 15, 2, 12, 1),
    Sketcher.Constraint("Vertical", 0),
    Sketcher.Constraint("Horizontal", 1),
    Sketcher.Constraint("Vertical", 2),
    Sketcher.Constraint("Horizontal", 3),
    Sketcher.Constraint("Vertical", 4),
    Sketcher.Constraint("Horizontal", 5),
    Sketcher.Constraint("Vertical", 6),
    Sketcher.Constraint("Horizontal", 7),
    Sketcher.Constraint("Vertical", 8),
    Sketcher.Constraint("Horizontal", 9),
    Sketcher.Constraint("Vertical", 10),
    Sketcher.Constraint("Horizontal", 11),
    Sketcher.Constraint("Vertical", 12),
    Sketcher.Constraint("Horizontal", 13),
    Sketcher.Constraint("Vertical", 14),
    Sketcher.Constraint("Horizontal", 15),
    Sketcher.Constraint("Symmetric", 7, 2, 12, 2, -1),
    Sketcher.Constraint("Symmetric", 5, 2, 14, 2, -1),
    Sketcher.Constraint("Vertical", 3, 2, 8, 2),
    Sketcher.Constraint("Vertical", 2, 2, 9, 2),
    Sketcher.Constraint("Equal", 2, 8),
    Sketcher.Constraint("DistanceX", 5, 1, 5, 2, Q("4 mm")),
    Sketcher.Constraint("DistanceY", 0, 2, 0, 1, Q("1 mm")),
    Sketcher.Constraint("DistanceX", 1, 1, 1, 2, Q("2.5 mm")),
    Sketcher.Constraint("DistanceY", 4, 2, 4, 1, Q("1.2 mm")),
    Sketcher.Constraint("DistanceX", 0, 2, -1, 1, Q("10 mm")),
    Sketcher.Constraint("DistanceY", 8, 2, 0, 2, Q("2 mm")),
    Sketcher.Constraint("DistanceY", 2, 2, 4, 2, Q("3.633601 mm")),
    Sketcher.Constraint("DistanceX", -1, 1, 4, 2, Q("4.205608 mm")),
    Sketcher.Constraint("DistanceY", 0, 2, -1, 1, Q("1.868697 mm")),
])
pad7 = doc.addObject("PartDesign::Pad", "Pad006")
body.addObject(pad7)
pad7.Profile = sketch8
pad7.Length = 0.5
body2 = doc.addObject("PartDesign::Body", "Body001")

# Sketch on XY plane
sketch9 = doc.addObject("Sketcher::SketchObject", "Sketch008")
body2.addObject(sketch9)
sketch9.AttachmentSupport = (doc.getObject("XY_Plane001"), [""])
sketch9.MapMode = "FlatFace"
sketch9.AttachmentOffset = App.Placement(App.Vector(0, 0, 3), App.Rotation())
sketch9.addGeometry([
    Part.LineSegment(App.Vector(11, 2, 0), App.Vector(11, -2, 0)),
    Part.LineSegment(App.Vector(11, -2, 0), App.Vector(12.5, -2, 0)),
    Part.LineSegment(App.Vector(12.5, -2, 0), App.Vector(12.5, 2, 0)),
    Part.LineSegment(App.Vector(12.5, 2, 0), App.Vector(11, 2, 0)),
], False)
sketch9.addConstraint([
    Sketcher.Constraint("Coincident", 0, 2, 1, 1),
    Sketcher.Constraint("Coincident", 1, 2, 2, 1),
    Sketcher.Constraint("Coincident", 2, 2, 3, 1),
    Sketcher.Constraint("Coincident", 3, 2, 0, 1),
    Sketcher.Constraint("Vertical", 0),
    Sketcher.Constraint("Horizontal", 1),
    Sketcher.Constraint("Vertical", 2),
    Sketcher.Constraint("Horizontal", 3),
    Sketcher.Constraint("DistanceY", 0, 2, 0, 1, Q("4 mm")),
    Sketcher.Constraint("DistanceX", 1, 1, 1, 2, Q("1.5 mm")),
    Sketcher.Constraint("DistanceX", -1, 1, 0, 2, Q("11 mm")),
    Sketcher.Constraint("DistanceY", 0, 2, -1, 1, Q("2 mm")),
])
pad8 = doc.addObject("PartDesign::Pad", "Pad007")
body2.addObject(pad8)
pad8.Profile = sketch9
pad8.Length = 1.5
doc.recompute()

boolean = doc.addObject("PartDesign::Boolean", "Boolean")
body.addObject(boolean)
boolean.Type = "Fuse"
boolean.addObjects([body2])

# Sketch on YZ plane
sketch10 = doc.addObject("Sketcher::SketchObject", "Sketch009")
body.addObject(sketch10)
sketch10.AttachmentSupport = (doc.YZ_Plane, [""])
sketch10.MapMode = "FlatFace"
sketch10.AttachmentOffset = App.Placement(App.Vector(0, 0, 12.5), App.Rotation())
sketch10.addGeometry([
    Part.Circle(App.Vector(1.514222, 3.75, 0), App.Vector(0, 0, 1), 0.125),
    Part.Circle(App.Vector(0.514222, 3.75, 0), App.Vector(0, 0, 1), 0.125),
    Part.Circle(App.Vector(-0.485778, 3.75, 0), App.Vector(0, 0, 1), 0.125),
    Part.Circle(App.Vector(-1.485778, 3.75, 0), App.Vector(0, 0, 1), 0.125),
], False)
sketch10.addConstraint([
    Sketcher.Constraint("Equal", 0, 1),
    Sketcher.Constraint("Equal", 1, 2),
    Sketcher.Constraint("Equal", 2, 3),
    Sketcher.Constraint("Horizontal", 0, 3, 1, 3),
    Sketcher.Constraint("Horizontal", 1, 3, 2, 3),
    Sketcher.Constraint("Horizontal", 2, 3, 3, 3),
    Sketcher.Constraint("Diameter", 0, Q("0.25 mm")),
    Sketcher.Constraint("DistanceX", 1, 3, 0, 3, Q("1 mm")),
    Sketcher.Constraint("DistanceX", 2, 3, 1, 3, Q("1 mm")),
    Sketcher.Constraint("DistanceX", 3, 3, 2, 3, Q("1 mm")),
    Sketcher.Constraint("DistanceY", -1, 1, 0, 3, Q("3.75 mm")),
    Sketcher.Constraint("DistanceX", -1, 1, 0, 3, Q("1.514222 mm")),
])
pad9 = doc.addObject("PartDesign::Pad", "Pad008")
body.addObject(pad9)
pad9.Profile = sketch10
pad9.Length = 2.5

# Sketch on XY plane
sketch11 = doc.addObject("Sketcher::SketchObject", "Sketch010")
body.addObject(sketch11)
sketch11.AttachmentSupport = (doc.XY_Plane, [""])
sketch11.MapMode = "FlatFace"
sketch11.AttachmentOffset = App.Placement(App.Vector(0, 0, 3), App.Rotation())
sketch11.addGeometry([
    Part.LineSegment(App.Vector(-11.606481, -1.868697, 0), App.Vector(-11.606481, 0.868697, 0)),
    Part.ArcOfCircle(Part.Circle(App.Vector(-12.5, 0.868697, 0), App.Vector(0, 0, 1), 0.893519), math.radians(0), math.radians(180)),
    Part.LineSegment(App.Vector(-13.393519, 0.868697, 0), App.Vector(-13.393519, -1.868697, 0)),
    Part.ArcOfCircle(Part.Circle(App.Vector(-12.5, -1.868697, 0), App.Vector(0, 0, 1), 0.893519), math.radians(180), math.radians(360)),
], False)
sketch11.addConstraint([
    Sketcher.Constraint("Tangent", 0, 2, 1, 1),
    Sketcher.Constraint("Tangent", 1, 2, 2, 1),
    Sketcher.Constraint("Tangent", 2, 2, 3, 1),
    Sketcher.Constraint("Tangent", 3, 2, 0, 1),
    Sketcher.Constraint("Vertical", 0),
    Sketcher.Constraint("Vertical", 2),
    Sketcher.Constraint("DistanceX", 1, 3, -1, 1, Q("12.5 mm")),
    Sketcher.Constraint("Radius", 1, Q("0.893519 mm")),
    Sketcher.Constraint("DistanceY", 0, 1, 0, 2, Q("2.737394 mm")),
    Sketcher.Constraint("DistanceY", -1, 1, 1, 3, Q("0.868697 mm")),
])
pad10 = doc.addObject("PartDesign::Pad", "Pad009")
body.addObject(pad10)
pad10.Profile = sketch11
pad10.Length = 1

# Sketch on XY plane
sketch12 = doc.addObject("Sketcher::SketchObject", "Sketch011")
body.addObject(sketch12)
sketch12.AttachmentSupport = (doc.XY_Plane, [""])
sketch12.MapMode = "FlatFace"
sketch12.AttachmentOffset = App.Placement(App.Vector(0, 0, 3), App.Rotation())
sketch12.addGeometry([
    Part.LineSegment(App.Vector(0, 3.964904, 0), App.Vector(0, 1.613675, 0)),  # 0
    Part.LineSegment(App.Vector(0, 1.613675, 0), App.Vector(1.159198, 1.613675, 0)),  # 1
    Part.LineSegment(App.Vector(1.159198, 1.613675, 0), App.Vector(1.159198, 3.964904, 0)),  # 2
    Part.LineSegment(App.Vector(1.159198, 3.964904, 0), App.Vector(0, 3.964904, 0)),  # 3
    Part.LineSegment(App.Vector(0, -1.518753, 0), App.Vector(0, -3.964904, 0)),  # 4
    Part.LineSegment(App.Vector(0, -3.964904, 0), App.Vector(1.159198, -3.964904, 0)),  # 5
    Part.LineSegment(App.Vector(1.159198, -3.964904, 0), App.Vector(1.159198, -1.518753, 0)),  # 6
    Part.LineSegment(App.Vector(1.159198, -1.518753, 0), App.Vector(0, -1.518753, 0)),  # 7
], False)
sketch12.addConstraint([
    Sketcher.Constraint("Coincident", 0, 2, 1, 1),
    Sketcher.Constraint("Coincident", 1, 2, 2, 1),
    Sketcher.Constraint("Coincident", 2, 2, 3, 1),
    Sketcher.Constraint("Coincident", 3, 2, 0, 1),
    Sketcher.Constraint("Coincident", 4, 2, 5, 1),
    Sketcher.Constraint("Coincident", 5, 2, 6, 1),
    Sketcher.Constraint("Coincident", 6, 2, 7, 1),
    Sketcher.Constraint("Coincident", 7, 2, 4, 1),
    Sketcher.Constraint("Vertical", 0),
    Sketcher.Constraint("Horizontal", 1),
    Sketcher.Constraint("Vertical", 2),
    Sketcher.Constraint("Horizontal", 3),
    Sketcher.Constraint("Vertical", 4),
    Sketcher.Constraint("Horizontal", 5),
    Sketcher.Constraint("Vertical", 6),
    Sketcher.Constraint("Horizontal", 7),
    Sketcher.Constraint("Symmetric", 3, 2, 4, 2, -1, 1),
    Sketcher.Constraint("PointOnObject", 0, 2, -2),
    Sketcher.Constraint("Vertical", 2, 2, 5, 2),
    Sketcher.Constraint("DistanceY", 0, 2, 0, 1, Q("2.351229 mm")),
    Sketcher.Constraint("DistanceY", 4, 2, 4, 1, Q("2.446151 mm")),
    Sketcher.Constraint("DistanceX", 1, 1, 1, 2, Q("1.159198 mm")),
    Sketcher.Constraint("DistanceY", 4, 2, 0, 2, Q("5.578579 mm")),
])
pad11 = doc.addObject("PartDesign::Pad", "Pad010")
body.addObject(pad11)
pad11.Profile = sketch12
pad11.Length = 0.5

doc.recompute()
